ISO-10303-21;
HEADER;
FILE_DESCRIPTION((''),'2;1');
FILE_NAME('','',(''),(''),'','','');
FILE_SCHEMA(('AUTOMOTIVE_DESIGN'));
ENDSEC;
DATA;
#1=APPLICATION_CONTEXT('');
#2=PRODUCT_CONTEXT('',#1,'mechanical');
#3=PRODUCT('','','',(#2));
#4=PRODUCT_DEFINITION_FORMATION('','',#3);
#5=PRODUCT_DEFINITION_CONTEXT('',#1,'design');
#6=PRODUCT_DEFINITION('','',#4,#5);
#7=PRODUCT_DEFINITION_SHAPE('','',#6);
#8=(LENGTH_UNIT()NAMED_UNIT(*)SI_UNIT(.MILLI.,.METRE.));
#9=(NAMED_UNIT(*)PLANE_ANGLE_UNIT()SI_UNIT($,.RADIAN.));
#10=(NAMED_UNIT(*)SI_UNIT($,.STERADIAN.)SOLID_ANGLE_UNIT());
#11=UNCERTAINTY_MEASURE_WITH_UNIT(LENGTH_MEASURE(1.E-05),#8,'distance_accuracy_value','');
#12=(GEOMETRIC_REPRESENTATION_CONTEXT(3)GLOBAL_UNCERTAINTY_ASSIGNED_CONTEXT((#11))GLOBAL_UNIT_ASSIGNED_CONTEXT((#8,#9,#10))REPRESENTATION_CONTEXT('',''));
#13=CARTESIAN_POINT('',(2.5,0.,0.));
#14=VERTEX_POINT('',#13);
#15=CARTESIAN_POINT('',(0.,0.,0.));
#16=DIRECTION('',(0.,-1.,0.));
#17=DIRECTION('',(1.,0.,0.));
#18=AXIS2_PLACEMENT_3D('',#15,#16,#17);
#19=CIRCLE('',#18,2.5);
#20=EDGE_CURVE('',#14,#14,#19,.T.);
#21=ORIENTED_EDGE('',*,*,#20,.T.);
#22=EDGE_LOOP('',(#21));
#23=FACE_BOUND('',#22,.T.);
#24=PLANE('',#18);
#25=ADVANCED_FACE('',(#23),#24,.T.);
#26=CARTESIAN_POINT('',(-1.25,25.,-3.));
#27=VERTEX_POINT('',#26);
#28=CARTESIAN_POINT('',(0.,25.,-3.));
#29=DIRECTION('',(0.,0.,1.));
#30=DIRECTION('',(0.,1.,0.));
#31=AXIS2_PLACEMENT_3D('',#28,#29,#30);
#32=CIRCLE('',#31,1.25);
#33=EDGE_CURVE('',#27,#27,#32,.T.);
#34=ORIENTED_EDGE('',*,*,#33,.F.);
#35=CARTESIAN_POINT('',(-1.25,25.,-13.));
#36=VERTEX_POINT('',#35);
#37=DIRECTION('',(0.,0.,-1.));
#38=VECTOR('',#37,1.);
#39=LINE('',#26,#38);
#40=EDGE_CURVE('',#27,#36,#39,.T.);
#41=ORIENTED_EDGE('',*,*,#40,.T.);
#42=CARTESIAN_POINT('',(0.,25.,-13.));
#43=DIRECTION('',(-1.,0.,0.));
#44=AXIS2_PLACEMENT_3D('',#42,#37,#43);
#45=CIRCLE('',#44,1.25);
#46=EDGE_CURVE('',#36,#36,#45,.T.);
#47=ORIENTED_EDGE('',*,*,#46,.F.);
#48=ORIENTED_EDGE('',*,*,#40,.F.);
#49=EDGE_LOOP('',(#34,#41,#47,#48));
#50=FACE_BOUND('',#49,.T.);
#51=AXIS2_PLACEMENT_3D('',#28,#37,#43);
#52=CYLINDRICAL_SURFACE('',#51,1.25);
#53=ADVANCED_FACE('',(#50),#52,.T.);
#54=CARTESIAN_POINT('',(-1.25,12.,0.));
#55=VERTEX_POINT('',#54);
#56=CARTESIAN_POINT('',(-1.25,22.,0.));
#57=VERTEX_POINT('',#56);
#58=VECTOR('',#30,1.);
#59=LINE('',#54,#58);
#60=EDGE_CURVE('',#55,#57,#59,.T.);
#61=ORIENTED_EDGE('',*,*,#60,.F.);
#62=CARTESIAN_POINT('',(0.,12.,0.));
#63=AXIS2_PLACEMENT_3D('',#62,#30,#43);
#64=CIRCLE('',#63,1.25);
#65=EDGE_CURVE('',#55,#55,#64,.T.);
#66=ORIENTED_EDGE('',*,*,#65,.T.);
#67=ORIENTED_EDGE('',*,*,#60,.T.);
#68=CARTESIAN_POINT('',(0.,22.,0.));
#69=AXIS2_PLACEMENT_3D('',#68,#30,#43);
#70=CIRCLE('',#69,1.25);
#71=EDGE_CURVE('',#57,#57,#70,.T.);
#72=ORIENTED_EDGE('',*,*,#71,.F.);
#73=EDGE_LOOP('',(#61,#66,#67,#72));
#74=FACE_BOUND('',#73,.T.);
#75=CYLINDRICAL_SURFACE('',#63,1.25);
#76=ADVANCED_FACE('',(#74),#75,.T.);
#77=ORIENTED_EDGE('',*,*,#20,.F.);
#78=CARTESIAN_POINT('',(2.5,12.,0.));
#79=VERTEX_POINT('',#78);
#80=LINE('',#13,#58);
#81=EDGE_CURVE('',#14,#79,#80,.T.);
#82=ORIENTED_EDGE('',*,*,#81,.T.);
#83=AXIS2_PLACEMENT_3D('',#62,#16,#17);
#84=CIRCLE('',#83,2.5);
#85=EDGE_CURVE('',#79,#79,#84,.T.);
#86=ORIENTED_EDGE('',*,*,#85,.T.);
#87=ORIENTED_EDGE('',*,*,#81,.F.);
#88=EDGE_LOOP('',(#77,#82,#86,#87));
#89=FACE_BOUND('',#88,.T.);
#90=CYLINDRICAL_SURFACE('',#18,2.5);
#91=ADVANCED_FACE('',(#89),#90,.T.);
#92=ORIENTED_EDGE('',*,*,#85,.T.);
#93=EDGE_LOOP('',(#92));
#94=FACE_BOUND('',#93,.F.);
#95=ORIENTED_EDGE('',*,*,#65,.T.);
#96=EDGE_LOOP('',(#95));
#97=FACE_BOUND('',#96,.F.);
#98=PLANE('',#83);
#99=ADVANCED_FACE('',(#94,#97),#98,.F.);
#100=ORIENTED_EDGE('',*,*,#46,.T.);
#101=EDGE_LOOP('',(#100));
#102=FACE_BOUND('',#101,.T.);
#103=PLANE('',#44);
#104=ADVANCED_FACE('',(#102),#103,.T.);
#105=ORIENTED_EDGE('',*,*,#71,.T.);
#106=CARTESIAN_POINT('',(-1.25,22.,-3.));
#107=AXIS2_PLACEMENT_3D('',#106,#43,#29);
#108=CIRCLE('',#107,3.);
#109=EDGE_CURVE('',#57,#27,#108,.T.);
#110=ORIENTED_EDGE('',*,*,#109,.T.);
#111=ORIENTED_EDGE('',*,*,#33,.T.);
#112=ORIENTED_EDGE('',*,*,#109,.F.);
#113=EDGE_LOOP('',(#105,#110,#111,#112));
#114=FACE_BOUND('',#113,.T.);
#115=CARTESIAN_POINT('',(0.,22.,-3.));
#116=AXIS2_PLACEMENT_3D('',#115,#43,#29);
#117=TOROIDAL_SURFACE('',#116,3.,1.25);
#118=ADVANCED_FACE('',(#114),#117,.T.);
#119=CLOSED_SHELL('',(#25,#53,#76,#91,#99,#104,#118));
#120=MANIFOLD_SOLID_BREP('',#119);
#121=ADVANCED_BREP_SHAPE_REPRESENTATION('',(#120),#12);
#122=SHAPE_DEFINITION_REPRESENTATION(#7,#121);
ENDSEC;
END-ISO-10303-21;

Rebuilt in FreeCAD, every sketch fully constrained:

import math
import FreeCAD as App
import Part
import Sketcher

V = App.Vector
Q = App.Units.Quantity

doc = App.newDocument("Part")
params = doc.addObject("Spreadsheet::Sheet", "Params")
for row, (alias, value) in enumerate([
    ("sketch1_diameter", "5 mm"),
    ("pad1_length", "12 mm"),
    ("sketch2_diameter", "2.5 mm"),
    ("sketch3_radius", "3 mm"),
    ("sketch3_width", "10 mm"),
], start=1):
    params.set(f"A{row}", alias)
    params.set(f"B{row}", "=" + value)
    params.setAlias(f"B{row}", alias)

body = doc.addObject("PartDesign::Body", "Body")

# Sketch on XZ plane
sketch1 = doc.addObject("Sketcher::SketchObject", "Sketch")
body.addObject(sketch1)
sketch1.AttachmentSupport = (doc.XZ_Plane, [""])
sketch1.MapMode = "FlatFace"
sketch1.addGeometry(Part.Circle(V(0, 0, 0), V(0, 0, 1), 2.5), False)
sketch1.addConstraint(Sketcher.Constraint("Coincident", 0, 3, -1, 1))
sketch1.addConstraint(Sketcher.Constraint("Diameter", 0, Q("5 mm")))
sketch1.setExpression("Constraints[1]", "Params.sketch1_diameter")
pad1 = doc.addObject("PartDesign::Pad", "Pad")
body.addObject(pad1)
pad1.Profile = sketch1
pad1.setExpression("Length", "Params.pad1_length")
pad1.Reversed = True

# Sketch on XZ plane
sketch2 = doc.addObject("Sketcher::SketchObject", "Sketch001")
body.addObject(sketch2)
sketch2.AttachmentSupport = (doc.XZ_Plane, [""])
sketch2.MapMode = "FlatFace"
sketch2.AttachmentOffset = App.Placement(V(0, 0, -12), App.Rotation())
sketch2.addGeometry(Part.Circle(V(0, 0, 0), V(0, 0, 1), 1.2), False)
sketch2.addConstraint(Sketcher.Constraint("Coincident", 0, 3, -1, 1))
sketch2.addConstraint(Sketcher.Constraint("Diameter", 0, Q("2.5 mm")))
sketch2.setExpression("Constraints[1]", "Params.sketch2_diameter")

# Sketch on YZ plane
sketch3 = doc.addObject("Sketcher::SketchObject", "Sketch002")
body.addObject(sketch3)
sketch3.AttachmentSupport = (doc.YZ_Plane, [""])
sketch3.MapMode = "FlatFace"
sketch3.addGeometry(Part.LineSegment(V(12, 0, 0), V(22, 0, 0)), False)
sketch3.addGeometry(Part.ArcOfCircle(Part.Circle(V(22, -3, 0), V(0, 0, 1), 3), math.radians(0), math.radians(90)), False)
sketch3.addGeometry(Part.LineSegment(V(25, -3, 0), V(25, -13, 0)), False)
sketch3.addConstraint(Sketcher.Constraint("Tangent", 0, 2, 1, 2))
sketch3.addConstraint(Sketcher.Constraint("Tangent", 1, 1, 2, 1))
sketch3.addConstraint(Sketcher.Constraint("Horizontal", 0))
sketch3.addConstraint(Sketcher.Constraint("Vertical", 2))
sketch3.addConstraint(Sketcher.Constraint("PointOnObject", 0, 1, -1))
sketch3.addConstraint(Sketcher.Constraint("Equal", 0, 2))
sketch3.addConstraint(Sketcher.Constraint("Radius", 1, Q("3 mm")))
sketch3.addConstraint(Sketcher.Constraint("DistanceX", 0, 1, 0, 2, Q("10 mm")))
sketch3.addConstraint(Sketcher.Constraint("DistanceX", -1, 1, 1, 3, Q("22 mm")))
sketch3.setExpression("Constraints[6]", "Params.sketch3_radius")
sketch3.setExpression("Constraints[7]", "Params.sketch3_width")
doc.recompute()

additivepipe = doc.addObject("PartDesign::AdditivePipe", "AdditivePipe")
body.addObject(additivepipe)
additivepipe.Profile = sketch2
additivepipe.Spine = (sketch3, ["Edge1", "Edge2", "Edge3"])

doc.recompute()
